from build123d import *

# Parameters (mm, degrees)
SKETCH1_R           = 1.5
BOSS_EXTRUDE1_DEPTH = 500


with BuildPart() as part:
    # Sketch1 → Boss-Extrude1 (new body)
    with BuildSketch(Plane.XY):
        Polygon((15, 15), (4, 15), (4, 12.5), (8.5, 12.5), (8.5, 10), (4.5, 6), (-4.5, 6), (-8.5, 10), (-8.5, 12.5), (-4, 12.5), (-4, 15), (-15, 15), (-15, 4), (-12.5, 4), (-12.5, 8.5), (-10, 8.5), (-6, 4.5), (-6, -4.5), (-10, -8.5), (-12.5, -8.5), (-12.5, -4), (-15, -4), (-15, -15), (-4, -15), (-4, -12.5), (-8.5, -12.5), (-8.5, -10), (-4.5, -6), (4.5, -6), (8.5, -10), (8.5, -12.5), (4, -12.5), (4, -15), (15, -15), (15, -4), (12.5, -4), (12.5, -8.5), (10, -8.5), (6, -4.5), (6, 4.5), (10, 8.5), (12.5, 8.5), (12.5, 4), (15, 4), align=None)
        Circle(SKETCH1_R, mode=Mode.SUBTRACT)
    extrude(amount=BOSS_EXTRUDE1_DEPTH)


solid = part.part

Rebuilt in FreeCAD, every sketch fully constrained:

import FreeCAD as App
import Part
import Sketcher

V = App.Vector
Q = App.Units.Quantity


def add_polygon(sketch, points):
    """Adds a closed chain of lines whose ends are joined by coincident constraints."""
    first, n = sketch.GeometryCount, len(points)
    for a, b in zip(points, points[1:] + points[:1]):
        sketch.addGeometry(Part.LineSegment(App.Vector(*a, 0), App.Vector(*b, 0)), False)
    for i in range(n):
        sketch.addConstraint(Sketcher.Constraint("Coincident", first + i, 2, first + (i + 1) % n, 1))

doc = App.newDocument("Part")
params = doc.addObject("Spreadsheet::Sheet", "Params")
for row, (alias, value) in enumerate([
    ("sketch1_diameter", "3 mm"),
    ("sketch1_width", "11 mm"),
    ("sketch1_width2", "9 mm"),
    ("sketch1_width3", "4.5 mm"),
    ("sketch1_width4", "2.5 mm"),
    ("pad1_length", "500 mm"),
], start=1):
    params.set(f"A{row}", alias)
    params.set(f"B{row}", "=" + value)
    params.setAlias(f"B{row}", alias)

body = doc.addObject("PartDesign::Body", "Body")

sketch1 = body.newObject("Sketcher::SketchObject", "Sketch")
sketch1.AttachmentSupport = (doc.getObject("XY_Plane"), [""])
sketch1.MapMode = "FlatFace"
add_polygon(sketch1, [(15, 15), (4, 15), (4, 12.5), (8.5, 12.5), (8.5, 10), (4.5, 6), (-4.5, 6), (-8.5, 10), (-8.5, 12.5), (-4, 12.5), (-4, 15), (-15, 15), (-15, 4), (-12.5, 4), (-12.5, 8.5), (-10, 8.5), (-6, 4.5), (-6, -4.5), (-10, -8.5), (-12.5, -8.5), (-12.5, -4), (-15, -4), (-15, -15), (-4, -15), (-4, -12.5), (-8.5, -12.5), (-8.5, -10), (-4.5, -6), (4.5, -6), (8.5, -10), (8.5, -12.5), (4, -12.5), (4, -15), (15, -15), (15, -4), (12.5, -4), (12.5, -8.5), (10, -8.5), (6, -4.5), (6, 4.5), (10, 8.5), (12.5, 8.5), (12.5, 4), (15, 4)])
sketch1.addGeometry(Part.Circle(V(0, 0, 0), V(0, 0, 1), 1.5), False)
sketch1.addConstraint(Sketcher.Constraint("Horizontal", 0))
sketch1.addConstraint(Sketcher.Constraint("Vertical", 1))
sketch1.addConstraint(Sketcher.Constraint("Horizontal", 2))
sketch1.addConstraint(Sketcher.Constraint("Vertical", 3))
sketch1.addConstraint(Sketcher.Constraint("Horizontal", 5))
sketch1.addConstraint(Sketcher.Constraint("Vertical", 7))
sketch1.addConstraint(Sketcher.Constraint("Horizontal", 8))
sketch1.addConstraint(Sketcher.Constraint("Vertical", 9))
sketch1.addConstraint(Sketcher.Constraint("Horizontal", 10))
sketch1.addConstraint(Sketcher.Constraint("Vertical", 11))
sketch1.addConstraint(Sketcher.Constraint("Horizontal", 12))
sketch1.addConstraint(Sketcher.Constraint("Vertical", 13))
sketch1.addConstraint(Sketcher.Constraint("Horizontal", 14))
sketch1.addConstraint(Sketcher.Constraint("Vertical", 16))
sketch1.addConstraint(Sketcher.Constraint("Horizontal", 18))
sketch1.addConstraint(Sketcher.Constraint("Vertical", 19))
sketch1.addConstraint(Sketcher.Constraint("Horizontal", 20))
sketch1.addConstraint(Sketcher.Constraint("Vertical", 21))
sketch1.addConstraint(Sketcher.Constraint("Horizontal", 22))
sketch1.addConstraint(Sketcher.Constraint("Vertical", 23))
sketch1.addConstraint(Sketcher.Constraint("Horizontal", 24))
sketch1.addConstraint(Sketcher.Constraint("Vertical", 25))
sketch1.addConstraint(Sketcher.Constraint("Horizontal", 27))
sketch1.addConstraint(Sketcher.Constraint("Vertical", 29))
sketch1.addConstraint(Sketcher.Constraint("Horizontal", 30))
sketch1.addConstraint(Sketcher.Constraint("Vertical", 31))
sketch1.addConstraint(Sketcher.Constraint("Horizontal", 32))
sketch1.addConstraint(Sketcher.Constraint("Vertical", 33))
sketch1.addConstraint(Sketcher.Constraint("Horizontal", 34))
sketch1.addConstraint(Sketcher.Constraint("Vertical", 35))
sketch1.addConstraint(Sketcher.Constraint("Horizontal", 36))
sketch1.addConstraint(Sketcher.Constraint("Vertical", 38))
sketch1.addConstraint(Sketcher.Constraint("Horizontal", 40))
sketch1.addConstraint(Sketcher.Constraint("Vertical", 41))
sketch1.addConstraint(Sketcher.Constraint("Horizontal", 42))
sketch1.addConstraint(Sketcher.Constraint("Vertical", 43))
sketch1.addConstraint(Sketcher.Constraint("Coincident", 44, 3, -1, 1))
sketch1.addConstraint(Sketcher.Constraint("Symmetric", 0, 2, 22, 2, -1, 1))
sketch1.addConstraint(Sketcher.Constraint("Symmetric", 2, 2, 24, 2, -1, 1))
sketch1.addConstraint(Sketcher.Constraint("Symmetric", 4, 2, 26, 2, -1, 1))
sketch1.addConstraint(Sketcher.Constraint("Symmetric", 6, 2, 28, 2, -1, 1))
sketch1.addConstraint(Sketcher.Constraint("Symmetric", 8, 2, 30, 2, -1, 1))
sketch1.addConstraint(Sketcher.Constraint("Symmetric", 10, 2, 32, 2, -1, 1))
sketch1.addConstraint(Sketcher.Constraint("Symmetric", 12, 2, 34, 2, -1, 1))
sketch1.addConstraint(Sketcher.Constraint("Symmetric", 14, 2, 36, 2, -1, 1))
sketch1.addConstraint(Sketcher.Constraint("Symmetric", 15, 2, 37, 2, -1, 1))
sketch1.addConstraint(Sketcher.Constraint("Symmetric", 17, 2, 39, 2, -1, 1))
sketch1.addConstraint(Sketcher.Constraint("Symmetric", 19, 2, 41, 2, -1, 1))
sketch1.addConstraint(Sketcher.Constraint("Symmetric", 3, 2, 6, 2, -2))
sketch1.addConstraint(Sketcher.Constraint("Symmetric", 1, 2, 8, 2, -2))
sketch1.addConstraint(Sketcher.Constraint("Symmetric", 21, 2, 32, 2, -2))
sketch1.addConstraint(Sketcher.Constraint("Symmetric", 19, 2, 34, 2, -2))
sketch1.addConstraint(Sketcher.Constraint("Symmetric", 17, 2, 36, 2, -2))
sketch1.addConstraint(Sketcher.Constraint("Perpendicular", 4, 6))
sketch1.addConstraint(Sketcher.Constraint("Parallel", 6, 15))
sketch1.addConstraint(Sketcher.Constraint("Perpendicular", 15, 17))
sketch1.addConstraint(Sketcher.Constraint("Parallel", 17, 26))
sketch1.addConstraint(Sketcher.Constraint("Perpendicular", 26, 28))
sketch1.addConstraint(Sketcher.Constraint("Perpendicular", 37, 39))
sketch1.addConstraint(Sketcher.Constraint("Horizontal", 16, 2, 37, 2))
sketch1.addConstraint(Sketcher.Constraint("Vertical", 33, 2, 42, 2))
sketch1.addConstraint(Sketcher.Constraint("Equal", 12, 14))
sketch1.addConstraint(Sketcher.Constraint("Equal", 42, 1))
sketch1.addConstraint(Sketcher.Constraint("Equal", 1, 3))
sketch1.addConstraint(Sketcher.Constraint("Equal", 32, 11))
sketch1.addConstraint(Sketcher.Constraint("Equal", 30, 13))
sketch1.addConstraint(Sketcher.Constraint("Equal", 27, 16))
sketch1.addConstraint(Sketcher.Constraint("Equal", 6, 15))
sketch1.addConstraint(Sketcher.Constraint("Diameter", 44, Q("3 mm")))
sketch1.addConstraint(Sketcher.Constraint("DistanceX", 0, 2, 0, 1, Q("11 mm")))
sketch1.addConstraint(Sketcher.Constraint("DistanceX", 5, 2, 5, 1, Q("9 mm")))
sketch1.addConstraint(Sketcher.Constraint("DistanceX", 2, 1, 2, 2, Q("4.5 mm")))
sketch1.addConstraint(Sketcher.Constraint("DistanceX", 12, 1, 12, 2, Q("2.5 mm")))
sketch1.addConstraint(Sketcher.Constraint("DistanceX", -1, 1, 0, 2, Q("4 mm")))
sketch1.setExpression("Constraints[112]", "Params.sketch1_diameter")
sketch1.setExpression("Constraints[113]", "Params.sketch1_width")
sketch1.setExpression("Constraints[114]", "Params.sketch1_width2")
sketch1.setExpression("Constraints[115]", "Params.sketch1_width3")
sketch1.setExpression("Constraints[116]", "Params.sketch1_width4")
pad1 = body.newObject("PartDesign::Pad", "Pad")
pad1.Profile = sketch1
pad1.setExpression("Length", "Params.pad1_length")

doc.recompute()
